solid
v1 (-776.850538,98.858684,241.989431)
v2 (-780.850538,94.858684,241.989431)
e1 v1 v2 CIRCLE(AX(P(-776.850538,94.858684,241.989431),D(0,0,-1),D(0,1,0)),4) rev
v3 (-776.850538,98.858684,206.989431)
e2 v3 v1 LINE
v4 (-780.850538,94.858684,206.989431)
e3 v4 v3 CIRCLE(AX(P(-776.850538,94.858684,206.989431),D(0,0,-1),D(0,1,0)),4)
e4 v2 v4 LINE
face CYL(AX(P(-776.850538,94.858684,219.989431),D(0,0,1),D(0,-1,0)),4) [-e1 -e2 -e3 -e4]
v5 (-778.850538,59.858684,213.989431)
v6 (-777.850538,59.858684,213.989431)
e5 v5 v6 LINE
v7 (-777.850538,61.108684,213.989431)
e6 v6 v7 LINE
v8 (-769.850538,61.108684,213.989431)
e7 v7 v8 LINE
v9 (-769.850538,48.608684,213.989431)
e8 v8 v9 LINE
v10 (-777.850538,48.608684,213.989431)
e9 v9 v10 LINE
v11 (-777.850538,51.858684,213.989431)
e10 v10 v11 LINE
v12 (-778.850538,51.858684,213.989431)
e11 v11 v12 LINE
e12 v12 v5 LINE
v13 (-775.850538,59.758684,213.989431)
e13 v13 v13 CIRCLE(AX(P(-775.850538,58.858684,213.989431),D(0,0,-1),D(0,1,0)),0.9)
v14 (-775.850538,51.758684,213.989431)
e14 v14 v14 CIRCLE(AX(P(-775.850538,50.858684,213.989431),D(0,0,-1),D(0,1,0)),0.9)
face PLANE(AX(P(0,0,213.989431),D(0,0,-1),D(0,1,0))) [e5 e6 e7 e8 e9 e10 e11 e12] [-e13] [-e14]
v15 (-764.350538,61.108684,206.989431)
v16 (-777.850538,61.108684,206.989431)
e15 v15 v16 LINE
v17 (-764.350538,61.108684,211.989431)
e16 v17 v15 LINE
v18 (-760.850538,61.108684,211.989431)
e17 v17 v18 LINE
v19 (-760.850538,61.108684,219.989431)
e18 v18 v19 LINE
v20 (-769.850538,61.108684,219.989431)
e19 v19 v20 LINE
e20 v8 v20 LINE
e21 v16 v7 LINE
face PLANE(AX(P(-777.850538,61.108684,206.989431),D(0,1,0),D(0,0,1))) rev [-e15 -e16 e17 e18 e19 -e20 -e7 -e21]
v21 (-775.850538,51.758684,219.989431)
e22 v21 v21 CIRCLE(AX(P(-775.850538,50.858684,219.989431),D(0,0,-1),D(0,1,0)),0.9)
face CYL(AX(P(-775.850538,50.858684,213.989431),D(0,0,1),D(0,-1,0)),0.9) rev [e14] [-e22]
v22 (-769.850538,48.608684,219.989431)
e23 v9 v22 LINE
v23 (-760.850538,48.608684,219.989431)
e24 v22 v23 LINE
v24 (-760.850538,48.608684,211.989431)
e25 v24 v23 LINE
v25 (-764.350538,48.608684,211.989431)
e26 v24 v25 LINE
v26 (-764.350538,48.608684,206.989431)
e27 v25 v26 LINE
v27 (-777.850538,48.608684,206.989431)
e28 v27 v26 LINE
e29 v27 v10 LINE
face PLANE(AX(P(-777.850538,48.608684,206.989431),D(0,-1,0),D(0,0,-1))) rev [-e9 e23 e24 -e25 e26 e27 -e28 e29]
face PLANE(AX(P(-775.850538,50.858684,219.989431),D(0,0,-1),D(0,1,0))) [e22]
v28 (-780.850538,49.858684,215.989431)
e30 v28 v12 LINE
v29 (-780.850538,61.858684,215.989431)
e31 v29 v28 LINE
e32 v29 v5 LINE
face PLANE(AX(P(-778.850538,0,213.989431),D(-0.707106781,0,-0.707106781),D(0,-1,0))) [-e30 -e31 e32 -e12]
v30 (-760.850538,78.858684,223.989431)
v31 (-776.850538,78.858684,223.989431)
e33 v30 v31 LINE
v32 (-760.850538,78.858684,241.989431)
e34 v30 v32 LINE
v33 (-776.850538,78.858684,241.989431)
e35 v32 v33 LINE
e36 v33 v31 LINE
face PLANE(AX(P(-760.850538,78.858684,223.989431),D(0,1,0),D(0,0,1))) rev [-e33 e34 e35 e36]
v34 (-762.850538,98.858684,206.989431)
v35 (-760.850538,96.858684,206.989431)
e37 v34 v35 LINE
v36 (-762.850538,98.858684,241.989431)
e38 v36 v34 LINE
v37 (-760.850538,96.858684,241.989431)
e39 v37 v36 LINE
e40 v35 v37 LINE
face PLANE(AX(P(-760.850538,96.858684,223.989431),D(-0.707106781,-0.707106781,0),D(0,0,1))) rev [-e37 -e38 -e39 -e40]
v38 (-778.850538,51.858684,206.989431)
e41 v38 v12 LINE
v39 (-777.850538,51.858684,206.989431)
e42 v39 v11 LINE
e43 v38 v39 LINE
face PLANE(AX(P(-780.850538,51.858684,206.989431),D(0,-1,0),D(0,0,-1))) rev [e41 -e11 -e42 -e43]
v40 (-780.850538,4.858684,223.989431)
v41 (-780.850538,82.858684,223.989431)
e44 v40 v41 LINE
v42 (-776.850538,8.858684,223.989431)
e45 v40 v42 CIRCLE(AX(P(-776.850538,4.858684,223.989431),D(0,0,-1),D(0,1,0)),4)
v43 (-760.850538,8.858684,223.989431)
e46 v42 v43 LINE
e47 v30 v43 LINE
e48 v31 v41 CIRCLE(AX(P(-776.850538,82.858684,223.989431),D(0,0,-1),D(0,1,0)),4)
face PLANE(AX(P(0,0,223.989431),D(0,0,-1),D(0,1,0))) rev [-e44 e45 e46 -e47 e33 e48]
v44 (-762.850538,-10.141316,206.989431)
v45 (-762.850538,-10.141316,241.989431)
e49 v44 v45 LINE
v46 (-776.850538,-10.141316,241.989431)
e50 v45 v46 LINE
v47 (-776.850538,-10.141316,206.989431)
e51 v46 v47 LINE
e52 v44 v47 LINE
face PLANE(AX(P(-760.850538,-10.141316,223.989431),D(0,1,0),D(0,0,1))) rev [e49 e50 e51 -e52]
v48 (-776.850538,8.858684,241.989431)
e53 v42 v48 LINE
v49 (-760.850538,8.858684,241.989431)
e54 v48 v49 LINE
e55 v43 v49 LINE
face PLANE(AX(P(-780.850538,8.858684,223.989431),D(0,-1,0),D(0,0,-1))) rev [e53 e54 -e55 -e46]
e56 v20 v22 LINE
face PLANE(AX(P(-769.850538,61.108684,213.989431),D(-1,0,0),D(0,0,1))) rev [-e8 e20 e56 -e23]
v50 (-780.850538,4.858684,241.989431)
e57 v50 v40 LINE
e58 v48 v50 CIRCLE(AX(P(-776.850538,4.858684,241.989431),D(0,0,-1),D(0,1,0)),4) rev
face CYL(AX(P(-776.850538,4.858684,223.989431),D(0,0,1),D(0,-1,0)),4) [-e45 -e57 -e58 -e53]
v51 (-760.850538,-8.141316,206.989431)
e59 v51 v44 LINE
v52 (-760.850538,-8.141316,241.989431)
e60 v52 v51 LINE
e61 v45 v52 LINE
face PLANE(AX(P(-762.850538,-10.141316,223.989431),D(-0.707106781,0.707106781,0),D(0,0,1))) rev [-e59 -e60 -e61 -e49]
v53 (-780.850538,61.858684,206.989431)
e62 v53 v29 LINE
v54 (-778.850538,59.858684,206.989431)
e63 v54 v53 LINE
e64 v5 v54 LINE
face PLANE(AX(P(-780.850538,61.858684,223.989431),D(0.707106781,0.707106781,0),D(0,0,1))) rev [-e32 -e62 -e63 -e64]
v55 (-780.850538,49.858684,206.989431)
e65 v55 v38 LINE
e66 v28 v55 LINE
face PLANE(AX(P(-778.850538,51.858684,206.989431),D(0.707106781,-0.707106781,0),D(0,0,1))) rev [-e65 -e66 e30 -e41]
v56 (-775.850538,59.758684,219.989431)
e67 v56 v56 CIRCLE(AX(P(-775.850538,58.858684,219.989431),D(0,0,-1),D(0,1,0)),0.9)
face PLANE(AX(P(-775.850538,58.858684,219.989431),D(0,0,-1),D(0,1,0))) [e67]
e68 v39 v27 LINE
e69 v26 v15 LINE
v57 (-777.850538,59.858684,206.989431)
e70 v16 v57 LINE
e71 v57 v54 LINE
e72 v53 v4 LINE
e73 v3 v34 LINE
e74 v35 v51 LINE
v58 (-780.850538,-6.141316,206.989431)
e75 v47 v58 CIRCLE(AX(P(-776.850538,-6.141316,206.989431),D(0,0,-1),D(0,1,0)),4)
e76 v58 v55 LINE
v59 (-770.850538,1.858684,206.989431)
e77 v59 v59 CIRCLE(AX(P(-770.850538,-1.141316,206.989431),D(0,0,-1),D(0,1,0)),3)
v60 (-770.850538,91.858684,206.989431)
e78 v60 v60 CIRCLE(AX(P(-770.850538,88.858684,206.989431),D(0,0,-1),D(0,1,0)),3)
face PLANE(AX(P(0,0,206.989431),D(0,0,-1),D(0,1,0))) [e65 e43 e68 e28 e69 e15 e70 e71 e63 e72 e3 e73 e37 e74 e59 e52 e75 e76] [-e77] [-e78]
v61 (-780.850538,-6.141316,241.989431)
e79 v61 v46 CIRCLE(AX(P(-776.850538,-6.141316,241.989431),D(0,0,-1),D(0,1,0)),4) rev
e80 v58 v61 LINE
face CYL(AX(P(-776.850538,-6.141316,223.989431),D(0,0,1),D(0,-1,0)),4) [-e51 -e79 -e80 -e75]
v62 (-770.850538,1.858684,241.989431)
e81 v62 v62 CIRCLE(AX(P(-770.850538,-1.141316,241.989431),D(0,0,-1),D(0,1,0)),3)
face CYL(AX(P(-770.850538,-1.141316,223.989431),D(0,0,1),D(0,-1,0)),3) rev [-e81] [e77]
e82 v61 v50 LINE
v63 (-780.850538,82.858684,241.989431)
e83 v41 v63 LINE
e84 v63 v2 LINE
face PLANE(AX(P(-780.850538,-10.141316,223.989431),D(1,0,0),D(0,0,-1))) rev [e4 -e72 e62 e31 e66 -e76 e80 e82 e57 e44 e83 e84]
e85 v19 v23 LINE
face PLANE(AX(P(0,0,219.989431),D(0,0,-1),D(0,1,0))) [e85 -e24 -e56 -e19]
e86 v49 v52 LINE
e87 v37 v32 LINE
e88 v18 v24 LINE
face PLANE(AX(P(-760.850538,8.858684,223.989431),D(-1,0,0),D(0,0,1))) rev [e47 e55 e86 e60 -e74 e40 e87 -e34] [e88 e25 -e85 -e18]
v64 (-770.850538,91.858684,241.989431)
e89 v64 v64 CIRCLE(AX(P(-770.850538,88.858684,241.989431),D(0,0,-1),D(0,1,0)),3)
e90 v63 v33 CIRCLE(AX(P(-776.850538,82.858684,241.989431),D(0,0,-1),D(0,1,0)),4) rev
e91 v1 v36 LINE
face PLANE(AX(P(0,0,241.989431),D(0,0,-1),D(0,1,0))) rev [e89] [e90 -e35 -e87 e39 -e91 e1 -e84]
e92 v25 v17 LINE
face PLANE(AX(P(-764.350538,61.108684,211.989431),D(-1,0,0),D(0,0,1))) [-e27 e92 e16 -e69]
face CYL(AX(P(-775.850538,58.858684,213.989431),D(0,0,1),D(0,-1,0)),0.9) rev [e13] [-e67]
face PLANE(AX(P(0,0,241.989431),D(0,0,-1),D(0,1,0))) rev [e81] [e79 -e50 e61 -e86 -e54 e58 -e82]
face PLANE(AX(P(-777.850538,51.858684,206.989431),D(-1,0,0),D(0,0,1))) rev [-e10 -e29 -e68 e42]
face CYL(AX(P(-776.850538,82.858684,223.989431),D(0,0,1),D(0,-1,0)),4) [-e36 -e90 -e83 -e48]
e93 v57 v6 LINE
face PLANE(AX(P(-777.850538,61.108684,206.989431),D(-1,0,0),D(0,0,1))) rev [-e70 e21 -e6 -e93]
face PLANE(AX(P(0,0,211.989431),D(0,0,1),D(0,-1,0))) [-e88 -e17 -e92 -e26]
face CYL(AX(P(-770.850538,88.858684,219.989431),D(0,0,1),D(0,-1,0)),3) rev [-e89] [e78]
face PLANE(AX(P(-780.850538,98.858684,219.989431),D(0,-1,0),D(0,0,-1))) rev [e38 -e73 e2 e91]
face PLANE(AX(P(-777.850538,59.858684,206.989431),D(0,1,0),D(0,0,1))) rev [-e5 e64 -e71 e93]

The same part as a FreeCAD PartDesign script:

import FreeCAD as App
import Part
import Sketcher
Q = App.Units.Quantity


def edges_at(feature, points):
    """Names of the edges that pass closest to the given points."""
    edges = feature.Shape.Edges
    near = lambda p: min(range(len(edges)), key=lambda i: edges[i].distToShape(Part.Vertex(*p))[0])
    return sorted({f"Edge{near(p) + 1}" for p in points})

doc = App.newDocument("Part")
body = doc.addObject("PartDesign::Body", "Body")

# Sketch on XY plane
sketch1 = body.newObject("Sketcher::SketchObject", "Sketch")
sketch1.AttachmentSupport = (doc.getObject("XY_Plane"), [""])
sketch1.MapMode = "FlatFace"
sketch1.AttachmentOffset = App.Placement(App.Vector(0, 0, 241.989431), App.Rotation())
sketch1.addGeometry([
    Part.LineSegment(App.Vector(-760.850538, 8.858684, 0), App.Vector(-760.850538, -10.141316, 0)),  # 0
    Part.LineSegment(App.Vector(-760.850538, -10.141316, 0), App.Vector(-780.850538, -10.141316, 0)),  # 1
    Part.LineSegment(App.Vector(-780.850538, -10.141316, 0), App.Vector(-780.850538, 8.858684, 0)),  # 2
    Part.LineSegment(App.Vector(-780.850538, 8.858684, 0), App.Vector(-760.850538, 8.858684, 0)),  # 3
    Part.Circle(App.Vector(-770.850538, -1.141316, 0), App.Vector(0, 0, 1), 3),  # 4
], False)
sketch1.addConstraint([
    Sketcher.Constraint("Coincident", 0, 2, 1, 1),
    Sketcher.Constraint("Coincident", 1, 2, 2, 1),
    Sketcher.Constraint("Coincident", 2, 2, 3, 1),
    Sketcher.Constraint("Coincident", 3, 2, 0, 1),
    Sketcher.Constraint("Vertical", 0),
    Sketcher.Constraint("Horizontal", 1),
    Sketcher.Constraint("Vertical", 2),
    Sketcher.Constraint("Horizontal", 3),
    Sketcher.Constraint("Diameter", 4, Q("6 mm")),
    Sketcher.Constraint("DistanceX", 1, 2, 1, 1, Q("20 mm")),
    Sketcher.Constraint("DistanceY", 0, 2, 0, 1, Q("19 mm")),
    Sketcher.Constraint("DistanceX", 4, 3, 0, 2, Q("10 mm")),
    Sketcher.Constraint("DistanceY", 0, 2, 4, 3, Q("9 mm")),
    Sketcher.Constraint("DistanceX", 4, 3, -1, 1, Q("770.850538 mm")),
    Sketcher.Constraint("DistanceY", 4, 3, -1, 1, Q("1.141316 mm")),
])
pad1 = body.newObject("PartDesign::Pad", "Pad")
pad1.Profile = sketch1
pad1.Length = 18
pad1.Reversed = True
body2 = doc.addObject("PartDesign::Body", "Body001")

# Sketch on XY plane
sketch2 = body2.newObject("Sketcher::SketchObject", "Sketch001")
sketch2.AttachmentSupport = (doc.getObject("XY_Plane001"), [""])
sketch2.MapMode = "FlatFace"
sketch2.AttachmentOffset = App.Placement(App.Vector(0, 0, 241.989431), App.Rotation())
sketch2.addGeometry([
    Part.LineSegment(App.Vector(-760.850538, 98.858684, 0), App.Vector(-760.850538, 78.858684, 0)),  # 0
    Part.LineSegment(App.Vector(-760.850538, 78.858684, 0), App.Vector(-780.850538, 78.858684, 0)),  # 1
    Part.LineSegment(App.Vector(-780.850538, 78.858684, 0), App.Vector(-780.850538, 98.858684, 0)),  # 2
    Part.LineSegment(App.Vector(-780.850538, 98.858684, 0), App.Vector(-760.850538, 98.858684, 0)),  # 3
    Part.Circle(App.Vector(-770.850538, 88.858684, 0), App.Vector(0, 0, 1), 3),  # 4
], False)
sketch2.addConstraint([
    Sketcher.Constraint("Coincident", 0, 2, 1, 1),
    Sketcher.Constraint("Coincident", 1, 2, 2, 1),
    Sketcher.Constraint("Coincident", 2, 2, 3, 1),
    Sketcher.Constraint("Coincident", 3, 2, 0, 1),
    Sketcher.Constraint("Vertical", 0),
    Sketcher.Constraint("Horizontal", 1),
    Sketcher.Constraint("Vertical", 2),
    Sketcher.Constraint("Horizontal", 3),
    Sketcher.Constraint("Equal", 3, 0),
    Sketcher.Constraint("Diameter", 4, Q("6 mm")),
    Sketcher.Constraint("DistanceX", 1, 2, 1, 1, Q("20 mm")),
    Sketcher.Constraint("DistanceX", 4, 3, 0, 2, Q("10 mm")),
    Sketcher.Constraint("DistanceY", 0, 2, 4, 3, Q("10 mm")),
    Sketcher.Constraint("DistanceX", 4, 3, -1, 1, Q("770.850538 mm")),
    Sketcher.Constraint("DistanceY", -1, 1, 4, 3, Q("88.858684 mm")),
])
pad2 = body2.newObject("PartDesign::Pad", "Pad001")
pad2.Profile = sketch2
pad2.Length = 18
pad2.Reversed = True
body.AllowCompound = True
doc.recompute()

boolean = body.newObject("PartDesign::Boolean", "Boolean")
boolean.Type = "Fuse"
boolean.addObjects([body2])

# Sketch on XY plane
sketch3 = body.newObject("Sketcher::SketchObject", "Sketch002")
sketch3.AttachmentSupport = (doc.getObject("XY_Plane"), [""])
sketch3.MapMode = "FlatFace"
sketch3.AttachmentOffset = App.Placement(App.Vector(0, 0, 223.989431), App.Rotation())
sketch3.addGeometry([
    Part.LineSegment(App.Vector(-760.850538, 98.858684, 0), App.Vector(-760.850538, -10.141316, 0)),  # 0
    Part.LineSegment(App.Vector(-760.850538, -10.141316, 0), App.Vector(-780.850538, -10.141316, 0)),  # 1
    Part.LineSegment(App.Vector(-780.850538, -10.141316, 0), App.Vector(-780.850538, 98.858684, 0)),  # 2
    Part.LineSegment(App.Vector(-780.850538, 98.858684, 0), App.Vector(-760.850538, 98.858684, 0)),  # 3
    Part.Circle(App.Vector(-770.850538, -1.141316, 0), App.Vector(0, 0, 1), 3),  # 4
    Part.Circle(App.Vector(-770.850538, 88.858684, 0), App.Vector(0, 0, 1), 3),  # 5
], False)
sketch3.addConstraint([
    Sketcher.Constraint("Coincident", 0, 2, 1, 1),
    Sketcher.Constraint("Coincident", 1, 2, 2, 1),
    Sketcher.Constraint("Coincident", 2, 2, 3, 1),
    Sketcher.Constraint("Coincident", 3, 2, 0, 1),
    Sketcher.Constraint("Vertical", 0),
    Sketcher.Constraint("Horizontal", 1),
    Sketcher.Constraint("Vertical", 2),
    Sketcher.Constraint("Horizontal", 3),
    Sketcher.Constraint("Equal", 4, 5),
    Sketcher.Constraint("Vertical", 4, 3, 5, 3),
    Sketcher.Constraint("Diameter", 4, Q("6 mm")),
    Sketcher.Constraint("DistanceX", 1, 2, 1, 1, Q("20 mm")),
    Sketcher.Constraint("DistanceY", 0, 2, 0, 1, Q("109 mm")),
    Sketcher.Constraint("DistanceY", 4, 3, 5, 3, Q("90 mm")),
    Sketcher.Constraint("DistanceX", 4, 3, 0, 2, Q("10 mm")),
    Sketcher.Constraint("DistanceY", 0, 2, 4, 3, Q("9 mm")),
    Sketcher.Constraint("DistanceX", 4, 3, -1, 1, Q("770.850538 mm")),
    Sketcher.Constraint("DistanceY", 4, 3, -1, 1, Q("1.141316 mm")),
])
pad3 = body.newObject("PartDesign::Pad", "Pad002")
pad3.Profile = sketch3
pad3.Length = 4
pad3.Reversed = True

# Sketch on XY plane
sketch4 = body.newObject("Sketcher::SketchObject", "Sketch003")
sketch4.AttachmentSupport = (doc.getObject("XY_Plane"), [""])
sketch4.MapMode = "FlatFace"
sketch4.AttachmentOffset = App.Placement(App.Vector(0, 0, 219.989431), App.Rotation())
sketch4.addGeometry([
    Part.LineSegment(App.Vector(-780.850538, 51.858684, 0), App.Vector(-780.850538, 59.858684, 0)),  # 0
    Part.LineSegment(App.Vector(-780.850538, 59.858684, 0), App.Vector(-777.850538, 59.858684, 0)),  # 1
    Part.LineSegment(App.Vector(-777.850538, 59.858684, 0), App.Vector(-777.850538, 61.108684, 0)),  # 2
    Part.LineSegment(App.Vector(-777.850538, 61.108684, 0), App.Vector(-769.850538, 61.108684, 0)),  # 3
    Part.LineSegment(App.Vector(-769.850538, 61.108684, 0), App.Vector(-769.850538, 48.608684, 0)),  # 4
    Part.LineSegment(App.Vector(-769.850538, 48.608684, 0), App.Vector(-777.850538, 48.608684, 0)),  # 5
    Part.LineSegment(App.Vector(-777.850538, 48.608684, 0), App.Vector(-777.850538, 51.858684, 0)),  # 6
    Part.LineSegment(App.Vector(-777.850538, 51.858684, 0), App.Vector(-780.850538, 51.858684, 0)),  # 7
], False)
sketch4.addConstraint([
    Sketcher.Constraint("Coincident", 0, 2, 1, 1),
    Sketcher.Constraint("Coincident", 1, 2, 2, 1),
    Sketcher.Constraint("Coincident", 2, 2, 3, 1),
    Sketcher.Constraint("Coincident", 3, 2, 4, 1),
    Sketcher.Constraint("Coincident", 4, 2, 5, 1),
    Sketcher.Constraint("Coincident", 5, 2, 6, 1),
    Sketcher.Constraint("Coincident", 6, 2, 7, 1),
    Sketcher.Constraint("Coincident", 7, 2, 0, 1),
    Sketcher.Constraint("Vertical", 0),
    Sketcher.Constraint("Horizontal", 1),
    Sketcher.Constraint("Vertical", 2),
    Sketcher.Constraint("Horizontal", 3),
    Sketcher.Constraint("Vertical", 4),
    Sketcher.Constraint("Horizontal", 5),
    Sketcher.Constraint("Vertical", 6),
    Sketcher.Constraint("Horizontal", 7),
    Sketcher.Constraint("Vertical", 2, 2, 5, 2),
    Sketcher.Constraint("Equal", 5, 0),
    Sketcher.Constraint("DistanceX", 1, 1, 1, 2, Q("3 mm")),
    Sketcher.Constraint("DistanceX", 3, 1, 3, 2, Q("8 mm")),
    Sketcher.Constraint("DistanceY", 4, 2, 4, 1, Q("12.5 mm")),
    Sketcher.Constraint("DistanceY", 2, 1, 2, 2, Q("1.25 mm")),
    Sketcher.Constraint("DistanceX", 0, 2, -1, 1, Q("780.850538 mm")),
    Sketcher.Constraint("DistanceY", -1, 1, 0, 2, Q("59.858684 mm")),
])
pad4 = body.newObject("PartDesign::Pad", "Pad003")
pad4.Profile = sketch4
pad4.Length = 6
pad4.Reversed = True

# Sketch on XY plane
sketch5 = body.newObject("Sketcher::SketchObject", "Sketch004")
sketch5.AttachmentSupport = (doc.getObject("XY_Plane"), [""])
sketch5.MapMode = "FlatFace"
sketch5.AttachmentOffset = App.Placement(App.Vector(0, 0, 219.989431), App.Rotation())
sketch5.addGeometry([
    Part.Circle(App.Vector(-775.850538, 50.858684, 0), App.Vector(0, 0, 1), 0.9),
    Part.Circle(App.Vector(-775.850538, 58.858684, 0), App.Vector(0, 0, 1), 0.9),
], False)
sketch5.addConstraint([
    Sketcher.Constraint("Equal", 0, 1),
    Sketcher.Constraint("Vertical", 0, 3, 1, 3),
    Sketcher.Constraint("Diameter", 0, Q("1.8 mm")),
    Sketcher.Constraint("DistanceY", 0, 3, 1, 3, Q("8 mm")),
    Sketcher.Constraint("DistanceX", 0, 3, -1, 1, Q("775.850538 mm")),
    Sketcher.Constraint("DistanceY", -1, 1, 0, 3, Q("50.858684 mm")),
])
pocket1 = body.newObject("PartDesign::Pocket", "Pocket")
pocket1.Profile = sketch5
pocket1.Type = "ThroughAll"

# Sketch on XY plane
sketch6 = body.newObject("Sketcher::SketchObject", "Sketch005")
sketch6.AttachmentSupport = (doc.getObject("XY_Plane"), [""])
sketch6.MapMode = "FlatFace"
sketch6.AttachmentOffset = App.Placement(App.Vector(0, 0, 219.989431), App.Rotation())
sketch6.addGeometry([
    Part.LineSegment(App.Vector(-760.850538, -10.141316, 0), App.Vector(-780.850538, -10.141316, 0)),  # 0
    Part.LineSegment(App.Vector(-780.850538, -10.141316, 0), App.Vector(-780.850538, 51.858684, 0)),  # 1
    Part.LineSegment(App.Vector(-780.850538, 51.858684, 0), App.Vector(-777.850538, 51.858684, 0)),  # 2
    Part.LineSegment(App.Vector(-777.850538, 51.858684, 0), App.Vector(-777.850538, 48.608684, 0)),  # 3
    Part.LineSegment(App.Vector(-777.850538, 48.608684, 0), App.Vector(-760.850538, 48.608684, 0)),  # 4
    Part.LineSegment(App.Vector(-760.850538, 48.608684, 0), App.Vector(-760.850538, -10.141316, 0)),  # 5
    Part.Circle(App.Vector(-770.850538, -1.141316, 0), App.Vector(0, 0, 1), 3),  # 6
    Part.LineSegment(App.Vector(-777.850538, 61.108684, 0), App.Vector(-777.850538, 59.858684, 0)),  # 7
    Part.LineSegment(App.Vector(-777.850538, 59.858684, 0), App.Vector(-780.850538, 59.858684, 0)),  # 8
    Part.LineSegment(App.Vector(-780.850538, 59.858684, 0), App.Vector(-780.850538, 98.858684, 0)),  # 9
    Part.LineSegment(App.Vector(-780.850538, 98.858684, 0), App.Vector(-760.850538, 98.858684, 0)),  # 10
    Part.LineSegment(App.Vector(-760.850538, 98.858684, 0), App.Vector(-760.850538, 61.108684, 0)),  # 11
    Part.LineSegment(App.Vector(-760.850538, 61.108684, 0), App.Vector(-777.850538, 61.108684, 0)),  # 12
    Part.Circle(App.Vector(-770.850538, 88.858684, 0), App.Vector(0, 0, 1), 3),  # 13
], False)
sketch6.addConstraint([
    Sketcher.Constraint("Coincident", 0, 2, 1, 1),
    Sketcher.Constraint("Coincident", 1, 2, 2, 1),
    Sketcher.Constraint("Coincident", 2, 2, 3, 1),
    Sketcher.Constraint("Coincident", 3, 2, 4, 1),
    Sketcher.Constraint("Coincident", 4, 2, 5, 1),
    Sketcher.Constraint("Coincident", 5, 2, 0, 1),
    Sketcher.Constraint("Coincident", 7, 2, 8, 1),
    Sketcher.Constraint("Coincident", 8, 2, 9, 1),
    Sketcher.Constraint("Coincident", 9, 2, 10, 1),
    Sketcher.Constraint("Coincident", 10, 2, 11, 1),
    Sketcher.Constraint("Coincident", 11, 2, 12, 1),
    Sketcher.Constraint("Coincident", 12, 2, 7, 1),
    Sketcher.Constraint("Horizontal", 0),
    Sketcher.Constraint("Vertical", 1),
    Sketcher.Constraint("Horizontal", 2),
    Sketcher.Constraint("Vertical", 3),
    Sketcher.Constraint("Horizontal", 4),
    Sketcher.Constraint("Vertical", 5),
    Sketcher.Constraint("Vertical", 7),
    Sketcher.Constraint("Horizontal", 8),
    Sketcher.Constraint("Vertical", 9),
    Sketcher.Constraint("Horizontal", 10),
    Sketcher.Constraint("Vertical", 11),
    Sketcher.Constraint("Horizontal", 12),
    Sketcher.Constraint("Equal", 6, 13),
    Sketcher.Constraint("Vertical", 6, 3, 13, 3),
    Sketcher.Constraint("Vertical", 3, 2, 7, 2),
    Sketcher.Constraint("Vertical", 1, 2, 8, 2),
    Sketcher.Constraint("Vertical", 5, 2, 10, 2),
    Sketcher.Constraint("Diameter", 6, Q("6 mm")),
    Sketcher.Constraint("DistanceX", 0, 2, 0, 1, Q("20 mm")),
    Sketcher.Constraint("DistanceX", 2, 1, 2, 2, Q("3 mm")),
    Sketcher.Constraint("DistanceY", 1, 1, 1, 2, Q("62 mm")),
    Sketcher.Constraint("DistanceY", 9, 1, 9, 2, Q("39 mm")),
    Sketcher.Constraint("DistanceY", 6, 3, 13, 3, Q("90 mm")),
    Sketcher.Constraint("DistanceX", 0, 2, 6, 3, Q("10 mm")),
    Sketcher.Constraint("DistanceY", 0, 2, 6, 3, Q("9 mm")),
    Sketcher.Constraint("DistanceY", 2, 2, 7, 2, Q("8 mm")),
    Sketcher.Constraint("DistanceY", 3, 2, 3, 1, Q("3.25 mm")),
    Sketcher.Constraint("DistanceY", 7, 2, 7, 1, Q("1.25 mm")),
    Sketcher.Constraint("DistanceX", 6, 3, -1, 1, Q("770.850538 mm")),
    Sketcher.Constraint("DistanceY", 6, 3, -1, 1, Q("1.141316 mm")),
])
pad5 = body.newObject("PartDesign::Pad", "Pad004")
pad5.Profile = sketch6
pad5.Length = 13
pad5.Reversed = True
doc.recompute()

chamfer = body.newObject("PartDesign::Chamfer", "Chamfer")
chamfer.Base = (pad5, edges_at(pad5, [(-780.851, 59.859, 210.489), (-780.851, 55.859, 213.989), (-780.851, 51.859, 210.489)]))
chamfer.Size = 2

# Sketch on XY plane
sketch7 = body.newObject("Sketcher::SketchObject", "Sketch006")
sketch7.AttachmentSupport = (doc.getObject("XY_Plane"), [""])
sketch7.MapMode = "FlatFace"
sketch7.AttachmentOffset = App.Placement(App.Vector(0, 0, 206.989431), App.Rotation())
sketch7.addGeometry([
    Part.LineSegment(App.Vector(-760.850538, 61.108684, 0), App.Vector(-760.850538, 48.608684, 0)),
    Part.LineSegment(App.Vector(-760.850538, 48.608684, 0), App.Vector(-764.350538, 48.608684, 0)),
    Part.LineSegment(App.Vector(-764.350538, 48.608684, 0), App.Vector(-764.350538, 61.108684, 0)),
    Part.LineSegment(App.Vector(-764.350538, 61.108684, 0), App.Vector(-760.850538, 61.108684, 0)),
], False)
sketch7.addConstraint([
    Sketcher.Constraint("Coincident", 0, 2, 1, 1),
    Sketcher.Constraint("Coincident", 1, 2, 2, 1),
    Sketcher.Constraint("Coincident", 2, 2, 3, 1),
    Sketcher.Constraint("Coincident", 3, 2, 0, 1),
    Sketcher.Constraint("Vertical", 0),
    Sketcher.Constraint("Horizontal", 1),
    Sketcher.Constraint("Vertical", 2),
    Sketcher.Constraint("Horizontal", 3),
    Sketcher.Constraint("DistanceX", 1, 2, 1, 1, Q("3.5 mm")),
    Sketcher.Constraint("DistanceY", 0, 2, 0, 1, Q("12.5 mm")),
    Sketcher.Constraint("DistanceX", 0, 2, -1, 1, Q("760.850538 mm")),
    Sketcher.Constraint("DistanceY", -1, 1, 0, 2, Q("48.608684 mm")),
])
pad6 = body.newObject("PartDesign::Pad", "Pad005")
pad6.Profile = sketch7
pad6.Length = 5
doc.recompute()

fillet = body.newObject("PartDesign::Fillet", "Fillet")
fillet.Base = (pad6, edges_at(pad6, [
    (-780.851, 98.859, 224.489),
    (-780.851, 78.859, 232.989),
    (-780.851, 8.859, 232.989),
    (-780.851, -10.141, 224.489),
]))
fillet.Radius = 4
doc.recompute()

chamfer2 = body.newObject("PartDesign::Chamfer", "Chamfer001")
chamfer2.Base = (fillet, edges_at(fillet, [(-760.851, 98.859, 224.489), (-760.851, -10.141, 224.489)]))
chamfer2.Size = 2

doc.recompute()
